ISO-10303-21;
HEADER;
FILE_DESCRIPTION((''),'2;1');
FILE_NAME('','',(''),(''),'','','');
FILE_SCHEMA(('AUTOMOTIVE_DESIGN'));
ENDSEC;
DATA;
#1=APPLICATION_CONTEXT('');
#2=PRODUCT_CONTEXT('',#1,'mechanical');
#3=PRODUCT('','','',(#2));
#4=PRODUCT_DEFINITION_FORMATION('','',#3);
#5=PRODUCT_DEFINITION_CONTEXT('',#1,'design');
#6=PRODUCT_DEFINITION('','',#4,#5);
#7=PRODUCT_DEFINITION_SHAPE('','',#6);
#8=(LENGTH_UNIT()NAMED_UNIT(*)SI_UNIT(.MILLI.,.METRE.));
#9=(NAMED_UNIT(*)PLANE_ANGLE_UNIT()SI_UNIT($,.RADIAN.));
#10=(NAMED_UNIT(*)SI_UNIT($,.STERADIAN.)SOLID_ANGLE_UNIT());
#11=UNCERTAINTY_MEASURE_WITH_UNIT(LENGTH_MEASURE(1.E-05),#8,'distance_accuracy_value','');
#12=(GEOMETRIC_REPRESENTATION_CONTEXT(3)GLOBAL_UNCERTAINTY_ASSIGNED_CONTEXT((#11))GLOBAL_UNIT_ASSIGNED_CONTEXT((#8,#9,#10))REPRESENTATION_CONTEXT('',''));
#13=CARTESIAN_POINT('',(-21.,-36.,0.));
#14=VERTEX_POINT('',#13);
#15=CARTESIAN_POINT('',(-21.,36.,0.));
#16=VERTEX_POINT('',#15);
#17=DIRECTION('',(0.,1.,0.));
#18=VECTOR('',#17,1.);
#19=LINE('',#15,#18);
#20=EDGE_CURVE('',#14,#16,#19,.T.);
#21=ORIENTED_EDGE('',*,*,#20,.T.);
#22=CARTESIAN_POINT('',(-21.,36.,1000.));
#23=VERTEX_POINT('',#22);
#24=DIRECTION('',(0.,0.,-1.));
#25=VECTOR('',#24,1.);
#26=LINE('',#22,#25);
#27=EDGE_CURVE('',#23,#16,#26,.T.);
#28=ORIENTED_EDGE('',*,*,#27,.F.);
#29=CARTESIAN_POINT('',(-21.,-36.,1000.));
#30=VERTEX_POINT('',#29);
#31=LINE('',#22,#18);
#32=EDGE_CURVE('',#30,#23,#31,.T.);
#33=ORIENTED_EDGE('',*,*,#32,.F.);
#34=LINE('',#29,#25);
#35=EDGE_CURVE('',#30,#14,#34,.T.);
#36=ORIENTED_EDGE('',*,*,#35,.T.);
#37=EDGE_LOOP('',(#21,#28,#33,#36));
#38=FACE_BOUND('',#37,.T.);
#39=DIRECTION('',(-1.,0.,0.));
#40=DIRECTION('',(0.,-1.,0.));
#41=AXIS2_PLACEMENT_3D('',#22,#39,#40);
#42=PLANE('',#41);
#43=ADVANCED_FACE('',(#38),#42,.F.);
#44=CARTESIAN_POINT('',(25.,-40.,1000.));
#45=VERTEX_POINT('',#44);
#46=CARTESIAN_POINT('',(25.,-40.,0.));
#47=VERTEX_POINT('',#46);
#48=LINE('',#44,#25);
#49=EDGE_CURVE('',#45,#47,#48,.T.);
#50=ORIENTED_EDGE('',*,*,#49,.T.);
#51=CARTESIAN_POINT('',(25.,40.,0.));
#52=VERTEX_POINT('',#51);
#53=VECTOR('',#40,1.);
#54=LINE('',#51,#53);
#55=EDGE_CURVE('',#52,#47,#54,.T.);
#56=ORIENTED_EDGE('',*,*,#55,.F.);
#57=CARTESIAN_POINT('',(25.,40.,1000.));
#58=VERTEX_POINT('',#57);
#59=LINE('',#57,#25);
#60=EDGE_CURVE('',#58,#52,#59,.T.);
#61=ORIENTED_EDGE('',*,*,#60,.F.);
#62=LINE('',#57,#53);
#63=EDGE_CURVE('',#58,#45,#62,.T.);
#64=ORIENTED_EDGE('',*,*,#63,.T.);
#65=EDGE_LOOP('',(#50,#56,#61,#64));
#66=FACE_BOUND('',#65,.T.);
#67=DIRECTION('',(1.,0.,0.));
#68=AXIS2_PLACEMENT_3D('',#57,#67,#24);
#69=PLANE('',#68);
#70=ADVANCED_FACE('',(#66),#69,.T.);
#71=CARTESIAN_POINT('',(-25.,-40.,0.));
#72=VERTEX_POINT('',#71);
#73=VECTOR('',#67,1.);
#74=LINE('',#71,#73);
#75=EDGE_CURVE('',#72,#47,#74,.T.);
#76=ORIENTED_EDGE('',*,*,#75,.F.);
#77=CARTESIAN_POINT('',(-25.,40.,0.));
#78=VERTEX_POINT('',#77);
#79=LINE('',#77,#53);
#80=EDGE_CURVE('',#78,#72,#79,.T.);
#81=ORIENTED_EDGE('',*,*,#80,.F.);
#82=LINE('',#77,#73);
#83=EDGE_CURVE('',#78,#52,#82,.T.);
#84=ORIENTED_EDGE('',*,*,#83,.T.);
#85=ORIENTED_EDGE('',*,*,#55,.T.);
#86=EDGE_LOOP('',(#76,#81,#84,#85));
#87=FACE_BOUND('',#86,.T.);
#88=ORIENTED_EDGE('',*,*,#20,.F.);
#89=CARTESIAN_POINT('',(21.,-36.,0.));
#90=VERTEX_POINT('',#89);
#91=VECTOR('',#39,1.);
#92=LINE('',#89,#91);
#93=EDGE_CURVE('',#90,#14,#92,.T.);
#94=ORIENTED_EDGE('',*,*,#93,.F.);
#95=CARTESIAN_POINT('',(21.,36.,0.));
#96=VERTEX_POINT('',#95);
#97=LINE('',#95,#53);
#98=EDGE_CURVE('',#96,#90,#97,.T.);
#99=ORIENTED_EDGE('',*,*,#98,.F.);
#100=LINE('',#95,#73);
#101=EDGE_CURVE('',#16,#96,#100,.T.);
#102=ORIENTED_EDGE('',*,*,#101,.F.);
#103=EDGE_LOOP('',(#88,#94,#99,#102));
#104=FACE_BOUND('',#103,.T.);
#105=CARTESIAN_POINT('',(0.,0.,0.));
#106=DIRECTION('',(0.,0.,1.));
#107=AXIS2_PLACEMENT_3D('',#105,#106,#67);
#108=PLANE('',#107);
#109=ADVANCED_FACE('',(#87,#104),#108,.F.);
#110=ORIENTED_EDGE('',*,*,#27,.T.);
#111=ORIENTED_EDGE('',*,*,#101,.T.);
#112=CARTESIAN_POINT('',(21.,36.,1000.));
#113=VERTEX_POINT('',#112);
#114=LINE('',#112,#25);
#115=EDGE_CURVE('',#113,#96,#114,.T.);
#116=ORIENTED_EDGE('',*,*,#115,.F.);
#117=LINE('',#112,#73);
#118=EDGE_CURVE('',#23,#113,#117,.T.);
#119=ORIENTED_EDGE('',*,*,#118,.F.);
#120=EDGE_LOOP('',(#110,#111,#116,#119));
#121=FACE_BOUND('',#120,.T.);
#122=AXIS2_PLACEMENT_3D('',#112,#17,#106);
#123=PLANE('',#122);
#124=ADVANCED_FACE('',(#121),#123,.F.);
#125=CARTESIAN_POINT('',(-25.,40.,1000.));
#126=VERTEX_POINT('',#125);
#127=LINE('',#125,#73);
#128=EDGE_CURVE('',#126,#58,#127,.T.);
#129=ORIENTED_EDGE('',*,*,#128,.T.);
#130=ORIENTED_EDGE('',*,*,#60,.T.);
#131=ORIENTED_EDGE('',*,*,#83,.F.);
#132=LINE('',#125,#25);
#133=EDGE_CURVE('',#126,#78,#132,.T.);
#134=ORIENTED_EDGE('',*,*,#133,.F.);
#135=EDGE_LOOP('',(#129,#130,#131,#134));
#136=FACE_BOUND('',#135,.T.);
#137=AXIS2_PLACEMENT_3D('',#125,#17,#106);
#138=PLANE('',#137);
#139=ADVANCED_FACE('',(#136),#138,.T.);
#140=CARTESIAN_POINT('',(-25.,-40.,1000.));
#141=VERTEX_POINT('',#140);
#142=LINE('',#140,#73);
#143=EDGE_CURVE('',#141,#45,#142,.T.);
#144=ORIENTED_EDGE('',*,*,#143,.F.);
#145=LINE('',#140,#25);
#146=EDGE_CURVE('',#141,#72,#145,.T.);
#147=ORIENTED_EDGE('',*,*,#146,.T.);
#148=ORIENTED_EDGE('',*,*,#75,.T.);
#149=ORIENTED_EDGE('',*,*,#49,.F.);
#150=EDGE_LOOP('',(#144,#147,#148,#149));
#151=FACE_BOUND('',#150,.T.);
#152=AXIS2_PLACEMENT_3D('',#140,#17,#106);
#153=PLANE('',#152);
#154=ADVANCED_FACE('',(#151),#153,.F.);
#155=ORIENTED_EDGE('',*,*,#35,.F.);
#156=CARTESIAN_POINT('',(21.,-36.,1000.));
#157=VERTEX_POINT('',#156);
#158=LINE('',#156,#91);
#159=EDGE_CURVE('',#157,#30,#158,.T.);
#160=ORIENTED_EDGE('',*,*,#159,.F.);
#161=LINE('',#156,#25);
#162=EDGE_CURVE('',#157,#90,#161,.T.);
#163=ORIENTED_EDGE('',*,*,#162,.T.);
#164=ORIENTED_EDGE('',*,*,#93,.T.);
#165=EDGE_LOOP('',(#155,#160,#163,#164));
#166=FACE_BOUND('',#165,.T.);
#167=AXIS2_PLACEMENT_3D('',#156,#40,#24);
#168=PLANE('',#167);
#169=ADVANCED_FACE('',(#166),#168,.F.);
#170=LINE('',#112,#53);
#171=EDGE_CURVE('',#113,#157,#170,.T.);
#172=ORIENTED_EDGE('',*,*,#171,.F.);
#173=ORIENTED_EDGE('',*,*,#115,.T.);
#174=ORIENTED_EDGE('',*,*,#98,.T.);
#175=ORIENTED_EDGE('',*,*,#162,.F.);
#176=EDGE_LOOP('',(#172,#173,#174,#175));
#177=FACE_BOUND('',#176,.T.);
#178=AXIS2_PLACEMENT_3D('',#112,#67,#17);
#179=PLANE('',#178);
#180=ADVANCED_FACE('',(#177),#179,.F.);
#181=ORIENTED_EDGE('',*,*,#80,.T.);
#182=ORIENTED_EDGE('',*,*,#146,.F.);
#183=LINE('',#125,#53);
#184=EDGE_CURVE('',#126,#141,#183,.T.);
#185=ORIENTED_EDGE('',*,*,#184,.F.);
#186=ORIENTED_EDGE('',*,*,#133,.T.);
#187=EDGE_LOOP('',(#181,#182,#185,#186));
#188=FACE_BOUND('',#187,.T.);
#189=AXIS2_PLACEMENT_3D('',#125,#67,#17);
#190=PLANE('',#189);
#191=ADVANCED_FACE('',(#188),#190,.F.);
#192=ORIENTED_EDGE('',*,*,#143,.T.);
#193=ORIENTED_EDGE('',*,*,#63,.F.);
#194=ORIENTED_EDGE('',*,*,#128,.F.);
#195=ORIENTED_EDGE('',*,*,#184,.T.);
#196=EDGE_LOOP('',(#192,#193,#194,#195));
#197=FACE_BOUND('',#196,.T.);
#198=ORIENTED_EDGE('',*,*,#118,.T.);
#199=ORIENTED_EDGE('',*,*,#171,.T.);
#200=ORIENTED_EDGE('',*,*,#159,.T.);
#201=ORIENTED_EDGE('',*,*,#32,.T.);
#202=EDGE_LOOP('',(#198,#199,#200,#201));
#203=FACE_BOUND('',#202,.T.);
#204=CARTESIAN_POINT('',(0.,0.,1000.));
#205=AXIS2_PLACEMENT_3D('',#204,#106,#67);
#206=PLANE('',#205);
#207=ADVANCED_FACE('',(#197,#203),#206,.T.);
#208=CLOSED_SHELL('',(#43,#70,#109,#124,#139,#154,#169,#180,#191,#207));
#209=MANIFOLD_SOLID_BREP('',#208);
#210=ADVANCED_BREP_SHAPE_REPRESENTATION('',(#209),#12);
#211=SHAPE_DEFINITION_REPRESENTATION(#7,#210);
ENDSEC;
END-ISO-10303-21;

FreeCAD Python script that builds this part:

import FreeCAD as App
import Part
import Sketcher
from FreeCAD import Vector
Q = App.Units.Quantity

doc = App.newDocument("Part")
body = doc.addObject("PartDesign::Body", "Body")

# Sketch on XY plane
sketch1 = body.newObject("Sketcher::SketchObject", "Sketch")
sketch1.AttachmentSupport = (doc.getObject("XY_Plane"), [""])
sketch1.MapMode = "FlatFace"
sketch1.addGeometry(Part.LineSegment(Vector(-25, 40, 0), Vector(-25, -40, 0)), False)
sketch1.addGeometry(Part.LineSegment(Vector(-25, -40, 0), Vector(25, -40, 0)), False)
sketch1.addGeometry(Part.LineSegment(Vector(25, -40, 0), Vector(25, 40, 0)), False)
sketch1.addGeometry(Part.LineSegment(Vector(25, 40, 0), Vector(-25, 40, 0)), False)
sketch1.addConstraint(Sketcher.Constraint("Coincident", 0, 2, 1, 1))
sketch1.addConstraint(Sketcher.Constraint("Coincident", 1, 2, 2, 1))
sketch1.addConstraint(Sketcher.Constraint("Coincident", 2, 2, 3, 1))
sketch1.addConstraint(Sketcher.Constraint("Coincident", 3, 2, 0, 1))
sketch1.addConstraint(Sketcher.Constraint("Vertical", 0))
sketch1.addConstraint(Sketcher.Constraint("Horizontal", 1))
sketch1.addConstraint(Sketcher.Constraint("Vertical", 2))
sketch1.addConstraint(Sketcher.Constraint("Horizontal", 3))
sketch1.addConstraint(Sketcher.Constraint("Symmetric", 0, 2, 2, 2, -1, 1))
sketch1.addConstraint(Sketcher.Constraint("DistanceX", 1, 1, 1, 2, Q("50 mm")))
sketch1.addConstraint(Sketcher.Constraint("DistanceY", 0, 2, 0, 1, Q("80 mm")))
pad1 = body.newObject("PartDesign::Pad", "Pad")
pad1.Profile = sketch1
pad1.Length = 1000

# Sketch on XY plane
sketch2 = body.newObject("Sketcher::SketchObject", "Sketch001")
sketch2.AttachmentSupport = (doc.getObject("XY_Plane"), [""])
sketch2.MapMode = "FlatFace"
sketch2.addGeometry(Part.LineSegment(Vector(21, 36, 0), Vector(21, -36, 0)), False)
sketch2.addGeometry(Part.LineSegment(Vector(21, -36, 0), Vector(-21, -36, 0)), False)
sketch2.addGeometry(Part.LineSegment(Vector(-21, -36, 0), Vector(-21, 36, 0)), False)
sketch2.addGeometry(Part.LineSegment(Vector(-21, 36, 0), Vector(21, 36, 0)), False)
sketch2.addConstraint(Sketcher.Constraint("Coincident", 0, 2, 1, 1))
sketch2.addConstraint(Sketcher.Constraint("Coincident", 1, 2, 2, 1))
sketch2.addConstraint(Sketcher.Constraint("Coincident", 2, 2, 3, 1))
sketch2.addConstraint(Sketcher.Constraint("Coincident", 3, 2, 0, 1))
sketch2.addConstraint(Sketcher.Constraint("Vertical", 0))
sketch2.addConstraint(Sketcher.Constraint("Horizontal", 1))
sketch2.addConstraint(Sketcher.Constraint("Vertical", 2))
sketch2.addConstraint(Sketcher.Constraint("Horizontal", 3))
sketch2.addConstraint(Sketcher.Constraint("Symmetric", 0, 2, 2, 2, -1, 1))
sketch2.addConstraint(Sketcher.Constraint("DistanceX", 1, 2, 1, 1, Q("42 mm")))
sketch2.addConstraint(Sketcher.Constraint("DistanceY", 0, 2, 0, 1, Q("72 mm")))
pocket1 = body.newObject("PartDesign::Pocket", "Pocket")
pocket1.Profile = sketch2
pocket1.Length = 1000
pocket1.Reversed = True

doc.recompute()
